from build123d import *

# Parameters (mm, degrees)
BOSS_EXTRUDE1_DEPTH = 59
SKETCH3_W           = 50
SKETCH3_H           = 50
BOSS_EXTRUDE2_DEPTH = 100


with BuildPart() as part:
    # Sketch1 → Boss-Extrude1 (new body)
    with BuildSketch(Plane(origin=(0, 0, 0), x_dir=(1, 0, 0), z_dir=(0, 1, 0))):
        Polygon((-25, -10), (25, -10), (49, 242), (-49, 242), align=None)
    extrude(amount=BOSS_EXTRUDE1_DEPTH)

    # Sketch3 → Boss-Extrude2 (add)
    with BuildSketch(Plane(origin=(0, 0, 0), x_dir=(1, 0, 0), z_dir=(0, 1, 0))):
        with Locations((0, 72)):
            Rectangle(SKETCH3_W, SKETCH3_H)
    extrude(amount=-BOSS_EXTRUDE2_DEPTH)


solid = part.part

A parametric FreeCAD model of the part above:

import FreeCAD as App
import Part
import Sketcher
from FreeCAD import Vector

doc = App.newDocument("Part")
body = doc.addObject("PartDesign::Body", "Body")

sketch1 = doc.addObject("Sketcher::SketchObject", "Sketch")
body.addObject(sketch1)
sketch1.AttachmentSupport = (doc.XZ_Plane, [""])
sketch1.MapMode = "FlatFace"
sketch1.addGeometry([
    Part.LineSegment(Vector(-25, 10, 0), Vector(25, 10, 0)),
    Part.LineSegment(Vector(25, 10, 0), Vector(49, -242, 0)),
    Part.LineSegment(Vector(49, -242, 0), Vector(-49, -242, 0)),
    Part.LineSegment(Vector(-49, -242, 0), Vector(-25, 10, 0)),
], False)
sketch1.addConstraint([
    Sketcher.Constraint("Coincident", 0, 2, 1, 1),
    Sketcher.Constraint("Coincident", 1, 2, 2, 1),
    Sketcher.Constraint("Coincident", 2, 2, 3, 1),
    Sketcher.Constraint("Coincident", 3, 2, 0, 1),
    Sketcher.Constraint("Horizontal", 0),
    Sketcher.Constraint("Horizontal", 2),
    Sketcher.Constraint("Equal", 1, 3),
    Sketcher.Constraint("DistanceX", 0, 1, 0, 2, 50.0),
    Sketcher.Constraint("DistanceX", 2, 2, 2, 1, 98.0),
    Sketcher.Constraint("DistanceX", -1, 1, 0, 2, 25.0),
    Sketcher.Constraint("DistanceY", -1, 1, 0, 2, 10.0),
    Sketcher.Constraint("DistanceY", 1, 2, -1, 1, 242.0),
])
pad1 = doc.addObject("PartDesign::Pad", "Pad")
body.addObject(pad1)
pad1.Profile = sketch1
pad1.Length = 59
pad1.Reversed = True

sketch2 = doc.addObject("Sketcher::SketchObject", "Sketch001")
body.addObject(sketch2)
sketch2.AttachmentSupport = (doc.XZ_Plane, [""])
sketch2.MapMode = "FlatFace"
sketch2.addGeometry([
    Part.LineSegment(Vector(-25, -97, 0), Vector(-25, -47, 0)),
    Part.LineSegment(Vector(-25, -47, 0), Vector(25, -47, 0)),
    Part.LineSegment(Vector(25, -47, 0), Vector(25, -97, 0)),
    Part.LineSegment(Vector(25, -97, 0), Vector(-25, -97, 0)),
], False)
sketch2.addConstraint([
    Sketcher.Constraint("Coincident", 0, 2, 1, 1),
    Sketcher.Constraint("Coincident", 1, 2, 2, 1),
    Sketcher.Constraint("Coincident", 2, 2, 3, 1),
    Sketcher.Constraint("Coincident", 3, 2, 0, 1),
    Sketcher.Constraint("Vertical", 0),
    Sketcher.Constraint("Horizontal", 1),
    Sketcher.Constraint("Vertical", 2),
    Sketcher.Constraint("Horizontal", 3),
    Sketcher.Constraint("Equal", 3, 0),
    Sketcher.Constraint("DistanceX", 1, 1, 1, 2, 50.0),
    Sketcher.Constraint("DistanceX", 0, 2, -1, 1, 25.0),
    Sketcher.Constraint("DistanceY", 0, 2, -1, 1, 47.0),
])
pad2 = doc.addObject("PartDesign::Pad", "Pad001")
body.addObject(pad2)
pad2.Profile = sketch2
pad2.Length = 100

doc.recompute()
